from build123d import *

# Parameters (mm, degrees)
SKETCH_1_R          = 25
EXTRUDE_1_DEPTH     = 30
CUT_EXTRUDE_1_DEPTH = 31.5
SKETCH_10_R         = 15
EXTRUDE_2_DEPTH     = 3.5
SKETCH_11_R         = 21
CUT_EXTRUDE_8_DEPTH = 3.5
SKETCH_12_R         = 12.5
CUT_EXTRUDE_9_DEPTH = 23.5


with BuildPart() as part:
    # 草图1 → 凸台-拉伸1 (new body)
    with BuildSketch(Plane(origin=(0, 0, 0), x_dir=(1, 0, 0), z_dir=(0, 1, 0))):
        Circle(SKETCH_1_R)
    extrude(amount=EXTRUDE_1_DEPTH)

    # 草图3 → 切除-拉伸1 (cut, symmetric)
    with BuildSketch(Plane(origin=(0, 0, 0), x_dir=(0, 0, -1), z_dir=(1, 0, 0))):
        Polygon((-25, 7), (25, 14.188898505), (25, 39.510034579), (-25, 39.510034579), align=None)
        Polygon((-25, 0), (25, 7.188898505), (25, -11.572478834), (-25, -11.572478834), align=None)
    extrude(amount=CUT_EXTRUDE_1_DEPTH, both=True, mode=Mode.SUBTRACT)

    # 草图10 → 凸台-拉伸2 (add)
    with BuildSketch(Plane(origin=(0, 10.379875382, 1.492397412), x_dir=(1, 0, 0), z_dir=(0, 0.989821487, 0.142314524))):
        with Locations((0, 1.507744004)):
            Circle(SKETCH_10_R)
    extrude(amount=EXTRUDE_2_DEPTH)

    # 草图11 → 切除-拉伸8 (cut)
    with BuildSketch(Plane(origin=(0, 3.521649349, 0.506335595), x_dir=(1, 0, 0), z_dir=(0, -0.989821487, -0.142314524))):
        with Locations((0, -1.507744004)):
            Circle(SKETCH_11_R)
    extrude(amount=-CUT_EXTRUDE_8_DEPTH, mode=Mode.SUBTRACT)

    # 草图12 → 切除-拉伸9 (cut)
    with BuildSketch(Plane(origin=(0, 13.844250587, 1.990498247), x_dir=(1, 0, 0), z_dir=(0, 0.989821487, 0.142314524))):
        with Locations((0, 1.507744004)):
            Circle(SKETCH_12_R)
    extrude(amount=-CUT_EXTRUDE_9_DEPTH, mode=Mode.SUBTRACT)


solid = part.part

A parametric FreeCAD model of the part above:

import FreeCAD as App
import Part
import Sketcher
from FreeCAD import Vector


def add_polygon(sketch, points):
    """Adds a closed chain of lines whose ends are joined by coincident constraints."""
    first, n = sketch.GeometryCount, len(points)
    for a, b in zip(points, points[1:] + points[:1]):
        sketch.addGeometry(Part.LineSegment(App.Vector(*a, 0), App.Vector(*b, 0)), False)
    for i in range(n):
        sketch.addConstraint(Sketcher.Constraint("Coincident", first + i, 2, first + (i + 1) % n, 1))

doc = App.newDocument("Part")
body = doc.addObject("PartDesign::Body", "Body")

# Sketch on XZ plane
sketch1 = body.newObject("Sketcher::SketchObject", "Sketch")
sketch1.AttachmentSupport = (doc.getObject("XZ_Plane"), [""])
sketch1.MapMode = "FlatFace"
sketch1.addGeometry(Part.Circle(Vector(0, 0, 0), Vector(0, 0, 1), 25), False)
sketch1.addConstraint(Sketcher.Constraint("Coincident", 0, 3, -1, 1))
sketch1.addConstraint(Sketcher.Constraint("Diameter", 0, 50.0))
pad1 = body.newObject("PartDesign::Pad", "Pad")
pad1.Profile = sketch1
pad1.Length = 30
pad1.Reversed = True

# Sketch on YZ plane
sketch2 = body.newObject("Sketcher::SketchObject", "Sketch001")
sketch2.AttachmentSupport = (doc.getObject("YZ_Plane"), [""])
sketch2.MapMode = "FlatFace"
add_polygon(sketch2, [(7, 25), (14.188899, -25), (39.510035, -25), (39.510035, 25)])  # lines 0-3
add_polygon(sketch2, [(7.188899, -25), (0, 25), (-11.572479, 25), (-11.572479, -25)])  # lines 4-7
sketch2.addConstraint(Sketcher.Constraint("Horizontal", 1))
sketch2.addConstraint(Sketcher.Constraint("Vertical", 2))
sketch2.addConstraint(Sketcher.Constraint("Horizontal", 3))
sketch2.addConstraint(Sketcher.Constraint("Horizontal", 5))
sketch2.addConstraint(Sketcher.Constraint("Vertical", 6))
sketch2.addConstraint(Sketcher.Constraint("Horizontal", 7))
sketch2.addConstraint(Sketcher.Constraint("PointOnObject", 4, 2, -2))
sketch2.addConstraint(Sketcher.Constraint("Parallel", 0, 4))
sketch2.addConstraint(Sketcher.Constraint("Horizontal", 3, 2, 4, 2))
sketch2.addConstraint(Sketcher.Constraint("Horizontal", 1, 2, 6, 2))
sketch2.addConstraint(Sketcher.Constraint("DistanceY", 2, 1, 2, 2, 50.0))
sketch2.addConstraint(Sketcher.Constraint("DistanceY", 0, 2, -1, 1, 25.0))
sketch2.addConstraint(Sketcher.Constraint("DistanceX", -1, 1, 3, 2, 7.0))
sketch2.addConstraint(Sketcher.Constraint("DistanceX", 5, 2, 5, 1, 11.572479))
sketch2.addConstraint(Sketcher.Constraint("DistanceX", -1, 1, 0, 2, 14.188899))
sketch2.addConstraint(Sketcher.Constraint("DistanceX", 1, 1, 1, 2, 25.321136))
pocket1 = body.newObject("PartDesign::Pocket", "Pocket")
pocket1.Profile = sketch2
pocket1.Length = 63
pocket1.Midplane = True

# Sketch on an angled plane
sketch3 = body.newObject("Sketcher::SketchObject", "Sketch002")
sketch3.Placement = App.Placement(Vector(0, 10.379875, 1.492397), App.Rotation(Vector(1, 0, 0), Vector(0, 0.142314524, -0.989821487), Vector(0, 0.989821487, 0.142314524), "ZXY"))
sketch3.addGeometry(Part.Circle(Vector(0, 1.507744, 0), Vector(0, 0, 1), 15), False)
sketch3.addConstraint(Sketcher.Constraint("PointOnObject", 0, 3, -2))
sketch3.addConstraint(Sketcher.Constraint("Diameter", 0, 30.0))
sketch3.addConstraint(Sketcher.Constraint("DistanceY", -1, 1, 0, 3, 1.507744))
pad2 = body.newObject("PartDesign::Pad", "Pad001")
pad2.Profile = sketch3
pad2.Length = 3.5

# Sketch on an angled plane
sketch4 = body.newObject("Sketcher::SketchObject", "Sketch003")
sketch4.Placement = App.Placement(Vector(0, 3.521649, 0.506336), App.Rotation(Vector(1, 0, 0), Vector(0, -0.142314524, 0.989821487), Vector(0, -0.989821487, -0.142314524), "ZXY"))
sketch4.addGeometry(Part.Circle(Vector(0, -1.507744, 0), Vector(0, 0, 1), 21), False)
sketch4.addConstraint(Sketcher.Constraint("PointOnObject", 0, 3, -2))
sketch4.addConstraint(Sketcher.Constraint("Diameter", 0, 42.0))
sketch4.addConstraint(Sketcher.Constraint("DistanceY", 0, 3, -1, 1, 1.507744))
pocket2 = body.newObject("PartDesign::Pocket", "Pocket001")
pocket2.Profile = sketch4
pocket2.Length = 3.5

# Sketch on an angled plane
sketch5 = body.newObject("Sketcher::SketchObject", "Sketch004")
sketch5.Placement = App.Placement(Vector(0, 13.844251, 1.990498), App.Rotation(Vector(1, 0, 0), Vector(0, 0.142314524, -0.989821487), Vector(0, 0.989821487, 0.142314524), "ZXY"))
sketch5.addGeometry(Part.Circle(Vector(0, 1.507744, 0), Vector(0, 0, 1), 12.5), False)
sketch5.addConstraint(Sketcher.Constraint("PointOnObject", 0, 3, -2))
sketch5.addConstraint(Sketcher.Constraint("Diameter", 0, 25.0))
sketch5.addConstraint(Sketcher.Constraint("DistanceY", -1, 1, 0, 3, 1.507744))
pocket3 = body.newObject("PartDesign::Pocket", "Pocket002")
pocket3.Profile = sketch5
pocket3.Length = 23.5

doc.recompute()
